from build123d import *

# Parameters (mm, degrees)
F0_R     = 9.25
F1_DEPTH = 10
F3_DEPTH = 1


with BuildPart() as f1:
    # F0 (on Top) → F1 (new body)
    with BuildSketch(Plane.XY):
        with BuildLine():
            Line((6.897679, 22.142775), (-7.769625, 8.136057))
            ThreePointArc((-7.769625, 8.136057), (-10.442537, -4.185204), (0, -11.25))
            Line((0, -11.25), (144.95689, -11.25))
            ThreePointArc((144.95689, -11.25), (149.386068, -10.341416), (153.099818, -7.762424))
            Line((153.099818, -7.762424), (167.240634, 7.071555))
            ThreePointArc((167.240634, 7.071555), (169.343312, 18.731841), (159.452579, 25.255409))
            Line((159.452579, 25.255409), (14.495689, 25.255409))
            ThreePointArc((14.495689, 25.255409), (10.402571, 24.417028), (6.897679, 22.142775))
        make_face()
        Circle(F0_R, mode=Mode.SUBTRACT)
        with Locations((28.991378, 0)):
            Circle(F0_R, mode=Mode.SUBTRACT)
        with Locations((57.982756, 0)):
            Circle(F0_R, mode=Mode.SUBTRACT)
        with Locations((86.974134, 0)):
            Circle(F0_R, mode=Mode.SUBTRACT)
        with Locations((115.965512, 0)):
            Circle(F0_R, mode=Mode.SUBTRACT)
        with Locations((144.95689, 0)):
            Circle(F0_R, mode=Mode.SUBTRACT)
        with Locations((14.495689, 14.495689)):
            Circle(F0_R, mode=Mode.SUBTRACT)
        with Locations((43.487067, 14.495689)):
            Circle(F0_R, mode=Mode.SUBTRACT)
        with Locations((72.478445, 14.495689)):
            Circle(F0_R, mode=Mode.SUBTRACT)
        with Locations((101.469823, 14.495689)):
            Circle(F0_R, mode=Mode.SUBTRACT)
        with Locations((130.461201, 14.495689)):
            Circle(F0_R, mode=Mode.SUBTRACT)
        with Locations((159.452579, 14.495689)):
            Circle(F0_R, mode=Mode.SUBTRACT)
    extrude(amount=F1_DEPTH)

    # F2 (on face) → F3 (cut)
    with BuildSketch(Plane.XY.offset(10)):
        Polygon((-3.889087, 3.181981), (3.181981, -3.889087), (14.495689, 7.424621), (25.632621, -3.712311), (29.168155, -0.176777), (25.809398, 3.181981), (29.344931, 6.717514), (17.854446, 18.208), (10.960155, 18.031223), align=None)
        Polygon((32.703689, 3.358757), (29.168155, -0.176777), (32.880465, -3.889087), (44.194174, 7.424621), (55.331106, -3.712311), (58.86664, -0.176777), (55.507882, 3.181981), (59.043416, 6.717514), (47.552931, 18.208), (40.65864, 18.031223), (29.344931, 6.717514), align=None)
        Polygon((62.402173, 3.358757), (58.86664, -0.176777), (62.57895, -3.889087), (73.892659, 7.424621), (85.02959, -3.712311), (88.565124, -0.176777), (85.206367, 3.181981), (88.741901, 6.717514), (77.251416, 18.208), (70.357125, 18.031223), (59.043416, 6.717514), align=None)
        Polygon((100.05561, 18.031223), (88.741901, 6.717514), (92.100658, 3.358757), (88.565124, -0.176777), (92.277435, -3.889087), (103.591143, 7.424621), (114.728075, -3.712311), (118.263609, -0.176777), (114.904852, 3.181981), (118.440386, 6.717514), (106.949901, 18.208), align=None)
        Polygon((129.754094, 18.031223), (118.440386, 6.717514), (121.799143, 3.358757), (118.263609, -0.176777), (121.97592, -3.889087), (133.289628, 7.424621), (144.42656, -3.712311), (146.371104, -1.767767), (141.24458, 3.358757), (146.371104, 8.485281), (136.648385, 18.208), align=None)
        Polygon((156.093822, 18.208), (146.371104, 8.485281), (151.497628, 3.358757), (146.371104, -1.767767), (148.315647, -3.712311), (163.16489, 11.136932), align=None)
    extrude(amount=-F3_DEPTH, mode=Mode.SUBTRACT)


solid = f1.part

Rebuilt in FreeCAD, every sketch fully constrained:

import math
import FreeCAD as App
import Part
import Sketcher
from FreeCAD import Vector
Q = App.Units.Quantity

doc = App.newDocument("Part")
body = doc.addObject("PartDesign::Body", "Body")

sketch1 = doc.addObject("Sketcher::SketchObject", "Sketch")
body.addObject(sketch1)
sketch1.AttachmentSupport = (doc.XY_Plane, [""])
sketch1.MapMode = "FlatFace"
sketch1.addGeometry([
    Part.LineSegment(Vector(6.897679, 22.142775, 0), Vector(-7.769625, 8.136057, 0)),
    Part.ArcOfCircle(Part.Circle(Vector(-0.000001, 0, 0), Vector(0, 0, 1), 11.25), math.radians(133.68026), math.radians(270.000004)),
    Part.LineSegment(Vector(0, -11.25, 0), Vector(144.95689, -11.25, 0)),
    Part.ArcOfCircle(Part.Circle(Vector(144.95689, -0.000001, 0), Vector(0, 0, 1), 11.249999), math.radians(-90.000002), math.radians(-43.629573)),
    Part.LineSegment(Vector(153.099818, -7.762424, 0), Vector(167.240634, 7.071555, 0)),
    Part.ArcOfCircle(Part.Circle(Vector(159.45258, 14.49569, 0), Vector(0, 0, 1), 10.759719), math.radians(-43.62958), math.radians(90.000004)),
    Part.LineSegment(Vector(159.452579, 25.255409, 0), Vector(14.495689, 25.255409, 0)),
    Part.ArcOfCircle(Part.Circle(Vector(14.667303, 14.00672, 0), Vector(0, 0, 1), 11.249998), math.radians(90.874059), math.radians(133.68027)),
    Part.Circle(Vector(0, 0, 0), Vector(0, 0, 1), 9.25),
    Part.Circle(Vector(28.991378, 0, 0), Vector(0, 0, 1), 9.25),
    Part.Circle(Vector(57.982756, 0, 0), Vector(0, 0, 1), 9.25),
    Part.Circle(Vector(86.974134, 0, 0), Vector(0, 0, 1), 9.25),
    Part.Circle(Vector(115.965512, 0, 0), Vector(0, 0, 1), 9.25),
    Part.Circle(Vector(144.95689, 0, 0), Vector(0, 0, 1), 9.25),
    Part.Circle(Vector(14.495689, 14.495689, 0), Vector(0, 0, 1), 9.25),
    Part.Circle(Vector(43.487067, 14.495689, 0), Vector(0, 0, 1), 9.25),
    Part.Circle(Vector(72.478445, 14.495689, 0), Vector(0, 0, 1), 9.25),
    Part.Circle(Vector(101.469823, 14.495689, 0), Vector(0, 0, 1), 9.25),
    Part.Circle(Vector(130.461201, 14.495689, 0), Vector(0, 0, 1), 9.25),
    Part.Circle(Vector(159.452579, 14.495689, 0), Vector(0, 0, 1), 9.25),
], False)
sketch1.addConstraint([
    Sketcher.Constraint("Coincident", 0, 2, 1, 1),
    Sketcher.Constraint("Coincident", 1, 2, 2, 1),
    Sketcher.Constraint("Coincident", 2, 2, 3, 1),
    Sketcher.Constraint("Coincident", 3, 2, 4, 1),
    Sketcher.Constraint("Coincident", 4, 2, 5, 1),
    Sketcher.Constraint("Coincident", 5, 2, 6, 1),
    Sketcher.Constraint("Coincident", 6, 2, 7, 1),
    Sketcher.Constraint("Coincident", 7, 2, 0, 1),
    Sketcher.Constraint("Horizontal", 2),
    Sketcher.Constraint("Horizontal", 6),
    Sketcher.Constraint("Coincident", 1, 3, -1, 1),
    Sketcher.Constraint("Coincident", 8, 3, -1, 1),
    Sketcher.Constraint("Coincident", 13, 3, 3, 3),
    Sketcher.Constraint("Coincident", 19, 3, 5, 3),
    Sketcher.Constraint("PointOnObject", 3, 3, -1),
    Sketcher.Constraint("PointOnObject", 9, 3, -1),
    Sketcher.Constraint("PointOnObject", 10, 3, -1),
    Sketcher.Constraint("PointOnObject", 11, 3, -1),
    Sketcher.Constraint("PointOnObject", 12, 3, -1),
    Sketcher.Constraint("PointOnObject", 1, 2, -2),
    Sketcher.Constraint("Diameter", 8, Q("18.5 mm")),
    Sketcher.Constraint("Diameter", 9, Q("18.5 mm")),
    Sketcher.Constraint("Diameter", 10, Q("18.5 mm")),
    Sketcher.Constraint("Diameter", 11, Q("18.5 mm")),
    Sketcher.Constraint("Diameter", 12, Q("18.5 mm")),
    Sketcher.Constraint("Diameter", 13, Q("18.5 mm")),
    Sketcher.Constraint("Diameter", 14, Q("18.5 mm")),
    Sketcher.Constraint("Diameter", 15, Q("18.5 mm")),
    Sketcher.Constraint("Diameter", 16, Q("18.5 mm")),
    Sketcher.Constraint("Diameter", 17, Q("18.5 mm")),
    Sketcher.Constraint("Diameter", 18, Q("18.5 mm")),
    Sketcher.Constraint("Diameter", 19, Q("18.5 mm")),
    Sketcher.Constraint("Radius", 1, Q("11.25 mm")),
    Sketcher.Constraint("Radius", 5, Q("10.759719 mm")),
    Sketcher.Constraint("Radius", 7, Q("11.249998 mm")),
    Sketcher.Constraint("DistanceX", 2, 1, 2, 2, Q("144.95689 mm")),
    Sketcher.Constraint("DistanceX", 6, 2, 6, 1, Q("144.95689 mm")),
    Sketcher.Constraint("DistanceX", -1, 1, 18, 3, Q("130.461201 mm")),
    Sketcher.Constraint("DistanceX", 9, 3, 5, 3, Q("130.461202 mm")),
    Sketcher.Constraint("DistanceX", -1, 1, 3, 3, Q("144.95689 mm")),
    Sketcher.Constraint("DistanceX", -1, 1, 5, 3, Q("159.45258 mm")),
    Sketcher.Constraint("DistanceY", -1, 1, 5, 3, Q("14.49569 mm")),
    Sketcher.Constraint("DistanceY", -1, 1, 7, 3, Q("14.00672 mm")),
    Sketcher.Constraint("DistanceX", -1, 1, 14, 3, Q("14.495689 mm")),
    Sketcher.Constraint("DistanceY", -1, 1, 14, 3, Q("14.495689 mm")),
    Sketcher.Constraint("DistanceY", -1, 1, 15, 3, Q("14.495689 mm")),
    Sketcher.Constraint("DistanceY", -1, 1, 16, 3, Q("14.495689 mm")),
    Sketcher.Constraint("DistanceY", -1, 1, 17, 3, Q("14.495689 mm")),
    Sketcher.Constraint("DistanceY", -1, 1, 18, 3, Q("14.495689 mm")),
    Sketcher.Constraint("DistanceX", -1, 1, 3, 2, Q("153.099818 mm")),
    Sketcher.Constraint("DistanceX", -1, 1, 5, 2, Q("159.452579 mm")),
    Sketcher.Constraint("DistanceX", -1, 1, 7, 2, Q("6.897679 mm")),
    Sketcher.Constraint("DistanceX", 9, 3, 10, 3, Q("28.991378 mm")),
    Sketcher.Constraint("DistanceX", 10, 3, 11, 3, Q("28.991378 mm")),
    Sketcher.Constraint("DistanceX", 12, 3, 3, 3, Q("28.991378 mm")),
    Sketcher.Constraint("DistanceX", 15, 3, 10, 3, Q("14.495689 mm")),
    Sketcher.Constraint("DistanceX", 10, 3, 16, 3, Q("14.495689 mm")),
    Sketcher.Constraint("DistanceX", 11, 3, 17, 3, Q("14.495689 mm")),
    Sketcher.Constraint("DistanceX", 0, 2, 7, 3, Q("22.436928 mm")),
    Sketcher.Constraint("DistanceY", 3, 2, 4, 2, Q("14.833979 mm")),
])
pad1 = doc.addObject("PartDesign::Pad", "Pad")
body.addObject(pad1)
pad1.Profile = sketch1
pad1.Length = 10

sketch2 = doc.addObject("Sketcher::SketchObject", "Sketch001")
body.addObject(sketch2)
sketch2.AttachmentSupport = (doc.XY_Plane, [""])
sketch2.MapMode = "FlatFace"
sketch2.AttachmentOffset = App.Placement(Vector(0, 0, 10), App.Rotation())
sketch2.addGeometry([
    Part.LineSegment(Vector(-3.9, 3.2, 0), Vector(3.2, -3.9, 0)),
    Part.LineSegment(Vector(3.2, -3.9, 0), Vector(14.5, 7.4, 0)),
    Part.LineSegment(Vector(14.5, 7.4, 0), Vector(25.6, -3.7, 0)),
    Part.LineSegment(Vector(25.6, -3.7, 0), Vector(29.2, -0.2, 0)),
    Part.LineSegment(Vector(29.2, -0.2, 0), Vector(25.8, 3.2, 0)),
    Part.LineSegment(Vector(25.8, 3.2, 0), Vector(29.3, 6.7, 0)),
    Part.LineSegment(Vector(29.3, 6.7, 0), Vector(17.9, 18.2, 0)),
    Part.LineSegment(Vector(17.9, 18.2, 0), Vector(11, 18, 0)),
    Part.LineSegment(Vector(11, 18, 0), Vector(-3.9, 3.2, 0)),
    Part.LineSegment(Vector(32.7, 3.4, 0), Vector(29.2, -0.2, 0)),
    Part.LineSegment(Vector(29.2, -0.2, 0), Vector(32.9, -3.9, 0)),
    Part.LineSegment(Vector(32.9, -3.9, 0), Vector(44.2, 7.4, 0)),
    Part.LineSegment(Vector(44.2, 7.4, 0), Vector(55.3, -3.7, 0)),
    Part.LineSegment(Vector(55.3, -3.7, 0), Vector(58.9, -0.2, 0)),
    Part.LineSegment(Vector(58.9, -0.2, 0), Vector(55.5, 3.2, 0)),
    Part.LineSegment(Vector(55.5, 3.2, 0), Vector(59, 6.7, 0)),
    Part.LineSegment(Vector(59, 6.7, 0), Vector(47.6, 18.2, 0)),
    Part.LineSegment(Vector(47.6, 18.2, 0), Vector(40.7, 18, 0)),
    Part.LineSegment(Vector(40.7, 18, 0), Vector(29.3, 6.7, 0)),
    Part.LineSegment(Vector(29.3, 6.7, 0), Vector(32.7, 3.4, 0)),
    Part.LineSegment(Vector(62.4, 3.4, 0), Vector(58.9, -0.2, 0)),
    Part.LineSegment(Vector(58.9, -0.2, 0), Vector(62.6, -3.9, 0)),
    Part.LineSegment(Vector(62.6, -3.9, 0), Vector(73.9, 7.4, 0)),
    Part.LineSegment(Vector(73.9, 7.4, 0), Vector(85, -3.7, 0)),
    Part.LineSegment(Vector(85, -3.7, 0), Vector(88.6, -0.2, 0)),
    Part.LineSegment(Vector(88.6, -0.2, 0), Vector(85.2, 3.2, 0)),
    Part.LineSegment(Vector(85.2, 3.2, 0), Vector(88.7, 6.7, 0)),
    Part.LineSegment(Vector(88.7, 6.7, 0), Vector(77.3, 18.2, 0)),
    Part.LineSegment(Vector(77.3, 18.2, 0), Vector(70.4, 18, 0)),
    Part.LineSegment(Vector(70.4, 18, 0), Vector(59, 6.7, 0)),
    Part.LineSegment(Vector(59, 6.7, 0), Vector(62.4, 3.4, 0)),
    Part.LineSegment(Vector(100.1, 18, 0), Vector(88.7, 6.7, 0)),
    Part.LineSegment(Vector(88.7, 6.7, 0), Vector(92.1, 3.4, 0)),
    Part.LineSegment(Vector(92.1, 3.4, 0), Vector(88.6, -0.2, 0)),
    Part.LineSegment(Vector(88.6, -0.2, 0), Vector(92.3, -3.9, 0)),
    Part.LineSegment(Vector(92.3, -3.9, 0), Vector(103.6, 7.4, 0)),
    Part.LineSegment(Vector(103.6, 7.4, 0), Vector(114.7, -3.7, 0)),
    Part.LineSegment(Vector(114.7, -3.7, 0), Vector(118.3, -0.2, 0)),
    Part.LineSegment(Vector(118.3, -0.2, 0), Vector(114.9, 3.2, 0)),
    Part.LineSegment(Vector(114.9, 3.2, 0), Vector(118.4, 6.7, 0)),
    Part.LineSegment(Vector(118.4, 6.7, 0), Vector(106.9, 18.2, 0)),
    Part.LineSegment(Vector(106.9, 18.2, 0), Vector(100.1, 18, 0)),
    Part.LineSegment(Vector(129.8, 18, 0), Vector(118.4, 6.7, 0)),
    Part.LineSegment(Vector(118.4, 6.7, 0), Vector(121.8, 3.4, 0)),
    Part.LineSegment(Vector(121.8, 3.4, 0), Vector(118.3, -0.2, 0)),
    Part.LineSegment(Vector(118.3, -0.2, 0), Vector(122, -3.9, 0)),
    Part.LineSegment(Vector(122, -3.9, 0), Vector(133.3, 7.4, 0)),
    Part.LineSegment(Vector(133.3, 7.4, 0), Vector(144.4, -3.7, 0)),
    Part.LineSegment(Vector(144.4, -3.7, 0), Vector(146.4, -1.8, 0)),
    Part.LineSegment(Vector(146.4, -1.8, 0), Vector(141.2, 3.4, 0)),
    Part.LineSegment(Vector(141.2, 3.4, 0), Vector(146.4, 8.5, 0)),
    Part.LineSegment(Vector(146.4, 8.5, 0), Vector(136.6, 18.2, 0)),
    Part.LineSegment(Vector(136.6, 18.2, 0), Vector(129.8, 18, 0)),
    Part.LineSegment(Vector(156.1, 18.2, 0), Vector(146.4, 8.5, 0)),
    Part.LineSegment(Vector(146.4, 8.5, 0), Vector(151.5, 3.4, 0)),
    Part.LineSegment(Vector(151.5, 3.4, 0), Vector(146.4, -1.8, 0)),
    Part.LineSegment(Vector(146.4, -1.8, 0), Vector(148.3, -3.7, 0)),
    Part.LineSegment(Vector(148.3, -3.7, 0), Vector(163.2, 11.1, 0)),
    Part.LineSegment(Vector(163.2, 11.1, 0), Vector(156.1, 18.2, 0)),
], False)
sketch2.addConstraint([
    Sketcher.Constraint("Coincident", 0, 2, 1, 1),
    Sketcher.Constraint("Coincident", 1, 2, 2, 1),
    Sketcher.Constraint("Coincident", 2, 2, 3, 1),
    Sketcher.Constraint("Coincident", 3, 2, 4, 1),
    Sketcher.Constraint("Coincident", 4, 2, 5, 1),
    Sketcher.Constraint("Coincident", 5, 2, 6, 1),
    Sketcher.Constraint("Coincident", 6, 2, 7, 1),
    Sketcher.Constraint("Coincident", 7, 2, 8, 1),
    Sketcher.Constraint("Coincident", 8, 2, 0, 1),
    Sketcher.Constraint("Coincident", 9, 2, 10, 1),
    Sketcher.Constraint("Coincident", 10, 2, 11, 1),
    Sketcher.Constraint("Coincident", 11, 2, 12, 1),
    Sketcher.Constraint("Coincident", 12, 2, 13, 1),
    Sketcher.Constraint("Coincident", 13, 2, 14, 1),
    Sketcher.Constraint("Coincident", 14, 2, 15, 1),
    Sketcher.Constraint("Coincident", 15, 2, 16, 1),
    Sketcher.Constraint("Coincident", 16, 2, 17, 1),
    Sketcher.Constraint("Coincident", 17, 2, 18, 1),
    Sketcher.Constraint("Coincident", 18, 2, 19, 1),
    Sketcher.Constraint("Coincident", 19, 2, 9, 1),
    Sketcher.Constraint("Coincident", 20, 2, 21, 1),
    Sketcher.Constraint("Coincident", 21, 2, 22, 1),
    Sketcher.Constraint("Coincident", 22, 2, 23, 1),
    Sketcher.Constraint("Coincident", 23, 2, 24, 1),
    Sketcher.Constraint("Coincident", 24, 2, 25, 1),
    Sketcher.Constraint("Coincident", 25, 2, 26, 1),
    Sketcher.Constraint("Coincident", 26, 2, 27, 1),
    Sketcher.Constraint("Coincident", 27, 2, 28, 1),
    Sketcher.Constraint("Coincident", 28, 2, 29, 1),
    Sketcher.Constraint("Coincident", 29, 2, 30, 1),
    Sketcher.Constraint("Coincident", 30, 2, 20, 1),
    Sketcher.Constraint("Coincident", 31, 2, 32, 1),
    Sketcher.Constraint("Coincident", 32, 2, 33, 1),
    Sketcher.Constraint("Coincident", 33, 2, 34, 1),
    Sketcher.Constraint("Coincident", 34, 2, 35, 1),
    Sketcher.Constraint("Coincident", 35, 2, 36, 1),
    Sketcher.Constraint("Coincident", 36, 2, 37, 1),
    Sketcher.Constraint("Coincident", 37, 2, 38, 1),
    Sketcher.Constraint("Coincident", 38, 2, 39, 1),
    Sketcher.Constraint("Coincident", 39, 2, 40, 1),
    Sketcher.Constraint("Coincident", 40, 2, 41, 1),
    Sketcher.Constraint("Coincident", 41, 2, 31, 1),
    Sketcher.Constraint("Coincident", 42, 2, 43, 1),
    Sketcher.Constraint("Coincident", 43, 2, 44, 1),
    Sketcher.Constraint("Coincident", 44, 2, 45, 1),
    Sketcher.Constraint("Coincident", 45, 2, 46, 1),
    Sketcher.Constraint("Coincident", 46, 2, 47, 1),
    Sketcher.Constraint("Coincident", 47, 2, 48, 1),
    Sketcher.Constraint("Coincident", 48, 2, 49, 1),
    Sketcher.Constraint("Coincident", 49, 2, 50, 1),
    Sketcher.Constraint("Coincident", 50, 2, 51, 1),
    Sketcher.Constraint("Coincident", 51, 2, 52, 1),
    Sketcher.Constraint("Coincident", 52, 2, 42, 1),
    Sketcher.Constraint("Coincident", 53, 2, 54, 1),
    Sketcher.Constraint("Coincident", 54, 2, 55, 1),
    Sketcher.Constraint("Coincident", 55, 2, 56, 1),
    Sketcher.Constraint("Coincident", 56, 2, 57, 1),
    Sketcher.Constraint("Coincident", 57, 2, 58, 1),
    Sketcher.Constraint("Coincident", 58, 2, 53, 1),
    Sketcher.Constraint("Coincident", 9, 2, 3, 2),
    Sketcher.Constraint("Coincident", 18, 2, 5, 2),
    Sketcher.Constraint("Coincident", 20, 2, 13, 2),
    Sketcher.Constraint("Coincident", 29, 2, 15, 2),
    Sketcher.Constraint("Coincident", 31, 2, 26, 2),
    Sketcher.Constraint("Coincident", 33, 2, 24, 2),
    Sketcher.Constraint("Coincident", 42, 2, 39, 2),
    Sketcher.Constraint("Coincident", 44, 2, 37, 2),
    Sketcher.Constraint("Coincident", 53, 2, 50, 2),
    Sketcher.Constraint("Coincident", 55, 2, 48, 2),
    Sketcher.Constraint("Perpendicular", 0, 1),
    Sketcher.Constraint("Perpendicular", 1, 2),
    Sketcher.Constraint("Perpendicular", 2, 3),
    Sketcher.Constraint("Perpendicular", 3, 4),
    Sketcher.Constraint("Perpendicular", 4, 5),
    Sketcher.Constraint("Perpendicular", 5, 6),
    Sketcher.Constraint("Perpendicular", 6, 8),
    Sketcher.Constraint("Parallel", 8, 9),
    Sketcher.Constraint("Perpendicular", 9, 10),
    Sketcher.Constraint("Perpendicular", 10, 11),
    Sketcher.Constraint("Perpendicular", 11, 12),
    Sketcher.Constraint("Perpendicular", 12, 13),
    Sketcher.Constraint("Perpendicular", 13, 14),
    Sketcher.Constraint("Perpendicular", 14, 15),
    Sketcher.Constraint("Perpendicular", 15, 16),
    Sketcher.Constraint("Parallel", 7, 17),
    Sketcher.Constraint("Perpendicular", 16, 18),
    Sketcher.Constraint("Perpendicular", 18, 19),
    Sketcher.Constraint("Perpendicular", 19, 20),
    Sketcher.Constraint("Perpendicular", 20, 21),
    Sketcher.Constraint("Perpendicular", 21, 22),
    Sketcher.Constraint("Perpendicular", 22, 23),
    Sketcher.Constraint("Perpendicular", 23, 24),
    Sketcher.Constraint("Perpendicular", 24, 25),
    Sketcher.Constraint("Perpendicular", 25, 26),
    Sketcher.Constraint("Perpendicular", 26, 27),
    Sketcher.Constraint("Parallel", 17, 28),
    Sketcher.Constraint("Perpendicular", 27, 29),
    Sketcher.Constraint("Perpendicular", 29, 30),
    Sketcher.Constraint("Perpendicular", 30, 31),
    Sketcher.Constraint("Perpendicular", 31, 32),
    Sketcher.Constraint("Perpendicular", 32, 33),
    Sketcher.Constraint("Perpendicular", 33, 34),
    Sketcher.Constraint("Perpendicular", 34, 35),
    Sketcher.Constraint("Perpendicular", 35, 36),
    Sketcher.Constraint("Perpendicular", 36, 37),
    Sketcher.Constraint("Perpendicular", 37, 38),
    Sketcher.Constraint("Perpendicular", 38, 39),
    Sketcher.Constraint("Perpendicular", 39, 40),
    Sketcher.Constraint("Parallel", 28, 41),
    Sketcher.Constraint("Perpendicular", 40, 42),
    Sketcher.Constraint("Perpendicular", 42, 43),
    Sketcher.Constraint("Perpendicular", 43, 44),
    Sketcher.Constraint("Perpendicular", 44, 45),
    Sketcher.Constraint("Perpendicular", 45, 46),
    Sketcher.Constraint("Perpendicular", 46, 47),
    Sketcher.Constraint("Perpendicular", 47, 48),
    Sketcher.Constraint("Perpendicular", 48, 49),
    Sketcher.Constraint("Perpendicular", 49, 50),
    Sketcher.Constraint("Perpendicular", 50, 51),
    Sketcher.Constraint("Parallel", 41, 52),
    Sketcher.Constraint("Perpendicular", 51, 53),
    Sketcher.Constraint("Perpendicular", 53, 54),
    Sketcher.Constraint("Perpendicular", 54, 55),
    Sketcher.Constraint("Perpendicular", 55, 56),
    Sketcher.Constraint("Perpendicular", 56, 57),
    Sketcher.Constraint("Perpendicular", 57, 58),
    Sketcher.Constraint("Horizontal", 4, 2, 8, 2),
    Sketcher.Constraint("Horizontal", 0, 2, 10, 2),
    Sketcher.Constraint("Horizontal", 1, 2, 11, 2),
    Sketcher.Constraint("Horizontal", 2, 2, 12, 2),
    Sketcher.Constraint("Horizontal", 9, 2, 13, 2),
    Sketcher.Constraint("Horizontal", 8, 2, 14, 2),
    Sketcher.Constraint("Horizontal", 5, 2, 15, 2),
    Sketcher.Constraint("Horizontal", 6, 2, 16, 2),
    Sketcher.Constraint("Horizontal", 10, 2, 21, 2),
    Sketcher.Constraint("Horizontal", 11, 2, 22, 2),
    Sketcher.Constraint("Horizontal", 12, 2, 23, 2),
    Sketcher.Constraint("Horizontal", 20, 2, 24, 2),
    Sketcher.Constraint("Horizontal", 14, 2, 25, 2),
    Sketcher.Constraint("Horizontal", 18, 2, 26, 2),
    Sketcher.Constraint("Horizontal", 16, 2, 27, 2),
    Sketcher.Constraint("Horizontal", 21, 2, 34, 2),
    Sketcher.Constraint("Horizontal", 22, 2, 35, 2),
    Sketcher.Constraint("Horizontal", 23, 2, 36, 2),
    Sketcher.Constraint("Horizontal", 33, 2, 37, 2),
    Sketcher.Constraint("Horizontal", 25, 2, 38, 2),
    Sketcher.Constraint("Horizontal", 31, 2, 39, 2),
    Sketcher.Constraint("Horizontal", 27, 2, 40, 2),
    Sketcher.Constraint("Horizontal", 34, 2, 45, 2),
    Sketcher.Constraint("Horizontal", 35, 2, 46, 2),
    Sketcher.Constraint("Horizontal", 36, 2, 47, 2),
    Sketcher.Constraint("Horizontal", 43, 2, 49, 2),
    Sketcher.Constraint("Horizontal", 40, 2, 51, 2),
    Sketcher.Constraint("Horizontal", 41, 2, 52, 2),
    Sketcher.Constraint("Horizontal", 47, 2, 56, 2),
    Sketcher.Constraint("Horizontal", 51, 2, 58, 2),
    Sketcher.Constraint("Vertical", 48, 2, 50, 2),
    Sketcher.Constraint("Equal", 3, 5),
    Sketcher.Constraint("Equal", 11, 18),
    Sketcher.Constraint("Equal", 8, 57),
    Sketcher.Constraint("Equal", 0, 58),
    Sketcher.Constraint("Distance", 0, Q("10 mm")),
    Sketcher.Constraint("Distance", 1, Q("15.999999 mm")),
    Sketcher.Constraint("Distance", 2, Q("15.75 mm")),
    Sketcher.Constraint("Distance", 48, Q("2.75 mm")),
    Sketcher.Constraint("DistanceY", -1, 1, 6, 2, Q("18.208 mm")),
    Sketcher.Constraint("DistanceX", -1, 1, 4, 2, Q("25.809398 mm")),
])
pocket1 = doc.addObject("PartDesign::Pocket", "Pocket")
body.addObject(pocket1)
pocket1.Profile = sketch2
pocket1.Length = 1

doc.recompute()
